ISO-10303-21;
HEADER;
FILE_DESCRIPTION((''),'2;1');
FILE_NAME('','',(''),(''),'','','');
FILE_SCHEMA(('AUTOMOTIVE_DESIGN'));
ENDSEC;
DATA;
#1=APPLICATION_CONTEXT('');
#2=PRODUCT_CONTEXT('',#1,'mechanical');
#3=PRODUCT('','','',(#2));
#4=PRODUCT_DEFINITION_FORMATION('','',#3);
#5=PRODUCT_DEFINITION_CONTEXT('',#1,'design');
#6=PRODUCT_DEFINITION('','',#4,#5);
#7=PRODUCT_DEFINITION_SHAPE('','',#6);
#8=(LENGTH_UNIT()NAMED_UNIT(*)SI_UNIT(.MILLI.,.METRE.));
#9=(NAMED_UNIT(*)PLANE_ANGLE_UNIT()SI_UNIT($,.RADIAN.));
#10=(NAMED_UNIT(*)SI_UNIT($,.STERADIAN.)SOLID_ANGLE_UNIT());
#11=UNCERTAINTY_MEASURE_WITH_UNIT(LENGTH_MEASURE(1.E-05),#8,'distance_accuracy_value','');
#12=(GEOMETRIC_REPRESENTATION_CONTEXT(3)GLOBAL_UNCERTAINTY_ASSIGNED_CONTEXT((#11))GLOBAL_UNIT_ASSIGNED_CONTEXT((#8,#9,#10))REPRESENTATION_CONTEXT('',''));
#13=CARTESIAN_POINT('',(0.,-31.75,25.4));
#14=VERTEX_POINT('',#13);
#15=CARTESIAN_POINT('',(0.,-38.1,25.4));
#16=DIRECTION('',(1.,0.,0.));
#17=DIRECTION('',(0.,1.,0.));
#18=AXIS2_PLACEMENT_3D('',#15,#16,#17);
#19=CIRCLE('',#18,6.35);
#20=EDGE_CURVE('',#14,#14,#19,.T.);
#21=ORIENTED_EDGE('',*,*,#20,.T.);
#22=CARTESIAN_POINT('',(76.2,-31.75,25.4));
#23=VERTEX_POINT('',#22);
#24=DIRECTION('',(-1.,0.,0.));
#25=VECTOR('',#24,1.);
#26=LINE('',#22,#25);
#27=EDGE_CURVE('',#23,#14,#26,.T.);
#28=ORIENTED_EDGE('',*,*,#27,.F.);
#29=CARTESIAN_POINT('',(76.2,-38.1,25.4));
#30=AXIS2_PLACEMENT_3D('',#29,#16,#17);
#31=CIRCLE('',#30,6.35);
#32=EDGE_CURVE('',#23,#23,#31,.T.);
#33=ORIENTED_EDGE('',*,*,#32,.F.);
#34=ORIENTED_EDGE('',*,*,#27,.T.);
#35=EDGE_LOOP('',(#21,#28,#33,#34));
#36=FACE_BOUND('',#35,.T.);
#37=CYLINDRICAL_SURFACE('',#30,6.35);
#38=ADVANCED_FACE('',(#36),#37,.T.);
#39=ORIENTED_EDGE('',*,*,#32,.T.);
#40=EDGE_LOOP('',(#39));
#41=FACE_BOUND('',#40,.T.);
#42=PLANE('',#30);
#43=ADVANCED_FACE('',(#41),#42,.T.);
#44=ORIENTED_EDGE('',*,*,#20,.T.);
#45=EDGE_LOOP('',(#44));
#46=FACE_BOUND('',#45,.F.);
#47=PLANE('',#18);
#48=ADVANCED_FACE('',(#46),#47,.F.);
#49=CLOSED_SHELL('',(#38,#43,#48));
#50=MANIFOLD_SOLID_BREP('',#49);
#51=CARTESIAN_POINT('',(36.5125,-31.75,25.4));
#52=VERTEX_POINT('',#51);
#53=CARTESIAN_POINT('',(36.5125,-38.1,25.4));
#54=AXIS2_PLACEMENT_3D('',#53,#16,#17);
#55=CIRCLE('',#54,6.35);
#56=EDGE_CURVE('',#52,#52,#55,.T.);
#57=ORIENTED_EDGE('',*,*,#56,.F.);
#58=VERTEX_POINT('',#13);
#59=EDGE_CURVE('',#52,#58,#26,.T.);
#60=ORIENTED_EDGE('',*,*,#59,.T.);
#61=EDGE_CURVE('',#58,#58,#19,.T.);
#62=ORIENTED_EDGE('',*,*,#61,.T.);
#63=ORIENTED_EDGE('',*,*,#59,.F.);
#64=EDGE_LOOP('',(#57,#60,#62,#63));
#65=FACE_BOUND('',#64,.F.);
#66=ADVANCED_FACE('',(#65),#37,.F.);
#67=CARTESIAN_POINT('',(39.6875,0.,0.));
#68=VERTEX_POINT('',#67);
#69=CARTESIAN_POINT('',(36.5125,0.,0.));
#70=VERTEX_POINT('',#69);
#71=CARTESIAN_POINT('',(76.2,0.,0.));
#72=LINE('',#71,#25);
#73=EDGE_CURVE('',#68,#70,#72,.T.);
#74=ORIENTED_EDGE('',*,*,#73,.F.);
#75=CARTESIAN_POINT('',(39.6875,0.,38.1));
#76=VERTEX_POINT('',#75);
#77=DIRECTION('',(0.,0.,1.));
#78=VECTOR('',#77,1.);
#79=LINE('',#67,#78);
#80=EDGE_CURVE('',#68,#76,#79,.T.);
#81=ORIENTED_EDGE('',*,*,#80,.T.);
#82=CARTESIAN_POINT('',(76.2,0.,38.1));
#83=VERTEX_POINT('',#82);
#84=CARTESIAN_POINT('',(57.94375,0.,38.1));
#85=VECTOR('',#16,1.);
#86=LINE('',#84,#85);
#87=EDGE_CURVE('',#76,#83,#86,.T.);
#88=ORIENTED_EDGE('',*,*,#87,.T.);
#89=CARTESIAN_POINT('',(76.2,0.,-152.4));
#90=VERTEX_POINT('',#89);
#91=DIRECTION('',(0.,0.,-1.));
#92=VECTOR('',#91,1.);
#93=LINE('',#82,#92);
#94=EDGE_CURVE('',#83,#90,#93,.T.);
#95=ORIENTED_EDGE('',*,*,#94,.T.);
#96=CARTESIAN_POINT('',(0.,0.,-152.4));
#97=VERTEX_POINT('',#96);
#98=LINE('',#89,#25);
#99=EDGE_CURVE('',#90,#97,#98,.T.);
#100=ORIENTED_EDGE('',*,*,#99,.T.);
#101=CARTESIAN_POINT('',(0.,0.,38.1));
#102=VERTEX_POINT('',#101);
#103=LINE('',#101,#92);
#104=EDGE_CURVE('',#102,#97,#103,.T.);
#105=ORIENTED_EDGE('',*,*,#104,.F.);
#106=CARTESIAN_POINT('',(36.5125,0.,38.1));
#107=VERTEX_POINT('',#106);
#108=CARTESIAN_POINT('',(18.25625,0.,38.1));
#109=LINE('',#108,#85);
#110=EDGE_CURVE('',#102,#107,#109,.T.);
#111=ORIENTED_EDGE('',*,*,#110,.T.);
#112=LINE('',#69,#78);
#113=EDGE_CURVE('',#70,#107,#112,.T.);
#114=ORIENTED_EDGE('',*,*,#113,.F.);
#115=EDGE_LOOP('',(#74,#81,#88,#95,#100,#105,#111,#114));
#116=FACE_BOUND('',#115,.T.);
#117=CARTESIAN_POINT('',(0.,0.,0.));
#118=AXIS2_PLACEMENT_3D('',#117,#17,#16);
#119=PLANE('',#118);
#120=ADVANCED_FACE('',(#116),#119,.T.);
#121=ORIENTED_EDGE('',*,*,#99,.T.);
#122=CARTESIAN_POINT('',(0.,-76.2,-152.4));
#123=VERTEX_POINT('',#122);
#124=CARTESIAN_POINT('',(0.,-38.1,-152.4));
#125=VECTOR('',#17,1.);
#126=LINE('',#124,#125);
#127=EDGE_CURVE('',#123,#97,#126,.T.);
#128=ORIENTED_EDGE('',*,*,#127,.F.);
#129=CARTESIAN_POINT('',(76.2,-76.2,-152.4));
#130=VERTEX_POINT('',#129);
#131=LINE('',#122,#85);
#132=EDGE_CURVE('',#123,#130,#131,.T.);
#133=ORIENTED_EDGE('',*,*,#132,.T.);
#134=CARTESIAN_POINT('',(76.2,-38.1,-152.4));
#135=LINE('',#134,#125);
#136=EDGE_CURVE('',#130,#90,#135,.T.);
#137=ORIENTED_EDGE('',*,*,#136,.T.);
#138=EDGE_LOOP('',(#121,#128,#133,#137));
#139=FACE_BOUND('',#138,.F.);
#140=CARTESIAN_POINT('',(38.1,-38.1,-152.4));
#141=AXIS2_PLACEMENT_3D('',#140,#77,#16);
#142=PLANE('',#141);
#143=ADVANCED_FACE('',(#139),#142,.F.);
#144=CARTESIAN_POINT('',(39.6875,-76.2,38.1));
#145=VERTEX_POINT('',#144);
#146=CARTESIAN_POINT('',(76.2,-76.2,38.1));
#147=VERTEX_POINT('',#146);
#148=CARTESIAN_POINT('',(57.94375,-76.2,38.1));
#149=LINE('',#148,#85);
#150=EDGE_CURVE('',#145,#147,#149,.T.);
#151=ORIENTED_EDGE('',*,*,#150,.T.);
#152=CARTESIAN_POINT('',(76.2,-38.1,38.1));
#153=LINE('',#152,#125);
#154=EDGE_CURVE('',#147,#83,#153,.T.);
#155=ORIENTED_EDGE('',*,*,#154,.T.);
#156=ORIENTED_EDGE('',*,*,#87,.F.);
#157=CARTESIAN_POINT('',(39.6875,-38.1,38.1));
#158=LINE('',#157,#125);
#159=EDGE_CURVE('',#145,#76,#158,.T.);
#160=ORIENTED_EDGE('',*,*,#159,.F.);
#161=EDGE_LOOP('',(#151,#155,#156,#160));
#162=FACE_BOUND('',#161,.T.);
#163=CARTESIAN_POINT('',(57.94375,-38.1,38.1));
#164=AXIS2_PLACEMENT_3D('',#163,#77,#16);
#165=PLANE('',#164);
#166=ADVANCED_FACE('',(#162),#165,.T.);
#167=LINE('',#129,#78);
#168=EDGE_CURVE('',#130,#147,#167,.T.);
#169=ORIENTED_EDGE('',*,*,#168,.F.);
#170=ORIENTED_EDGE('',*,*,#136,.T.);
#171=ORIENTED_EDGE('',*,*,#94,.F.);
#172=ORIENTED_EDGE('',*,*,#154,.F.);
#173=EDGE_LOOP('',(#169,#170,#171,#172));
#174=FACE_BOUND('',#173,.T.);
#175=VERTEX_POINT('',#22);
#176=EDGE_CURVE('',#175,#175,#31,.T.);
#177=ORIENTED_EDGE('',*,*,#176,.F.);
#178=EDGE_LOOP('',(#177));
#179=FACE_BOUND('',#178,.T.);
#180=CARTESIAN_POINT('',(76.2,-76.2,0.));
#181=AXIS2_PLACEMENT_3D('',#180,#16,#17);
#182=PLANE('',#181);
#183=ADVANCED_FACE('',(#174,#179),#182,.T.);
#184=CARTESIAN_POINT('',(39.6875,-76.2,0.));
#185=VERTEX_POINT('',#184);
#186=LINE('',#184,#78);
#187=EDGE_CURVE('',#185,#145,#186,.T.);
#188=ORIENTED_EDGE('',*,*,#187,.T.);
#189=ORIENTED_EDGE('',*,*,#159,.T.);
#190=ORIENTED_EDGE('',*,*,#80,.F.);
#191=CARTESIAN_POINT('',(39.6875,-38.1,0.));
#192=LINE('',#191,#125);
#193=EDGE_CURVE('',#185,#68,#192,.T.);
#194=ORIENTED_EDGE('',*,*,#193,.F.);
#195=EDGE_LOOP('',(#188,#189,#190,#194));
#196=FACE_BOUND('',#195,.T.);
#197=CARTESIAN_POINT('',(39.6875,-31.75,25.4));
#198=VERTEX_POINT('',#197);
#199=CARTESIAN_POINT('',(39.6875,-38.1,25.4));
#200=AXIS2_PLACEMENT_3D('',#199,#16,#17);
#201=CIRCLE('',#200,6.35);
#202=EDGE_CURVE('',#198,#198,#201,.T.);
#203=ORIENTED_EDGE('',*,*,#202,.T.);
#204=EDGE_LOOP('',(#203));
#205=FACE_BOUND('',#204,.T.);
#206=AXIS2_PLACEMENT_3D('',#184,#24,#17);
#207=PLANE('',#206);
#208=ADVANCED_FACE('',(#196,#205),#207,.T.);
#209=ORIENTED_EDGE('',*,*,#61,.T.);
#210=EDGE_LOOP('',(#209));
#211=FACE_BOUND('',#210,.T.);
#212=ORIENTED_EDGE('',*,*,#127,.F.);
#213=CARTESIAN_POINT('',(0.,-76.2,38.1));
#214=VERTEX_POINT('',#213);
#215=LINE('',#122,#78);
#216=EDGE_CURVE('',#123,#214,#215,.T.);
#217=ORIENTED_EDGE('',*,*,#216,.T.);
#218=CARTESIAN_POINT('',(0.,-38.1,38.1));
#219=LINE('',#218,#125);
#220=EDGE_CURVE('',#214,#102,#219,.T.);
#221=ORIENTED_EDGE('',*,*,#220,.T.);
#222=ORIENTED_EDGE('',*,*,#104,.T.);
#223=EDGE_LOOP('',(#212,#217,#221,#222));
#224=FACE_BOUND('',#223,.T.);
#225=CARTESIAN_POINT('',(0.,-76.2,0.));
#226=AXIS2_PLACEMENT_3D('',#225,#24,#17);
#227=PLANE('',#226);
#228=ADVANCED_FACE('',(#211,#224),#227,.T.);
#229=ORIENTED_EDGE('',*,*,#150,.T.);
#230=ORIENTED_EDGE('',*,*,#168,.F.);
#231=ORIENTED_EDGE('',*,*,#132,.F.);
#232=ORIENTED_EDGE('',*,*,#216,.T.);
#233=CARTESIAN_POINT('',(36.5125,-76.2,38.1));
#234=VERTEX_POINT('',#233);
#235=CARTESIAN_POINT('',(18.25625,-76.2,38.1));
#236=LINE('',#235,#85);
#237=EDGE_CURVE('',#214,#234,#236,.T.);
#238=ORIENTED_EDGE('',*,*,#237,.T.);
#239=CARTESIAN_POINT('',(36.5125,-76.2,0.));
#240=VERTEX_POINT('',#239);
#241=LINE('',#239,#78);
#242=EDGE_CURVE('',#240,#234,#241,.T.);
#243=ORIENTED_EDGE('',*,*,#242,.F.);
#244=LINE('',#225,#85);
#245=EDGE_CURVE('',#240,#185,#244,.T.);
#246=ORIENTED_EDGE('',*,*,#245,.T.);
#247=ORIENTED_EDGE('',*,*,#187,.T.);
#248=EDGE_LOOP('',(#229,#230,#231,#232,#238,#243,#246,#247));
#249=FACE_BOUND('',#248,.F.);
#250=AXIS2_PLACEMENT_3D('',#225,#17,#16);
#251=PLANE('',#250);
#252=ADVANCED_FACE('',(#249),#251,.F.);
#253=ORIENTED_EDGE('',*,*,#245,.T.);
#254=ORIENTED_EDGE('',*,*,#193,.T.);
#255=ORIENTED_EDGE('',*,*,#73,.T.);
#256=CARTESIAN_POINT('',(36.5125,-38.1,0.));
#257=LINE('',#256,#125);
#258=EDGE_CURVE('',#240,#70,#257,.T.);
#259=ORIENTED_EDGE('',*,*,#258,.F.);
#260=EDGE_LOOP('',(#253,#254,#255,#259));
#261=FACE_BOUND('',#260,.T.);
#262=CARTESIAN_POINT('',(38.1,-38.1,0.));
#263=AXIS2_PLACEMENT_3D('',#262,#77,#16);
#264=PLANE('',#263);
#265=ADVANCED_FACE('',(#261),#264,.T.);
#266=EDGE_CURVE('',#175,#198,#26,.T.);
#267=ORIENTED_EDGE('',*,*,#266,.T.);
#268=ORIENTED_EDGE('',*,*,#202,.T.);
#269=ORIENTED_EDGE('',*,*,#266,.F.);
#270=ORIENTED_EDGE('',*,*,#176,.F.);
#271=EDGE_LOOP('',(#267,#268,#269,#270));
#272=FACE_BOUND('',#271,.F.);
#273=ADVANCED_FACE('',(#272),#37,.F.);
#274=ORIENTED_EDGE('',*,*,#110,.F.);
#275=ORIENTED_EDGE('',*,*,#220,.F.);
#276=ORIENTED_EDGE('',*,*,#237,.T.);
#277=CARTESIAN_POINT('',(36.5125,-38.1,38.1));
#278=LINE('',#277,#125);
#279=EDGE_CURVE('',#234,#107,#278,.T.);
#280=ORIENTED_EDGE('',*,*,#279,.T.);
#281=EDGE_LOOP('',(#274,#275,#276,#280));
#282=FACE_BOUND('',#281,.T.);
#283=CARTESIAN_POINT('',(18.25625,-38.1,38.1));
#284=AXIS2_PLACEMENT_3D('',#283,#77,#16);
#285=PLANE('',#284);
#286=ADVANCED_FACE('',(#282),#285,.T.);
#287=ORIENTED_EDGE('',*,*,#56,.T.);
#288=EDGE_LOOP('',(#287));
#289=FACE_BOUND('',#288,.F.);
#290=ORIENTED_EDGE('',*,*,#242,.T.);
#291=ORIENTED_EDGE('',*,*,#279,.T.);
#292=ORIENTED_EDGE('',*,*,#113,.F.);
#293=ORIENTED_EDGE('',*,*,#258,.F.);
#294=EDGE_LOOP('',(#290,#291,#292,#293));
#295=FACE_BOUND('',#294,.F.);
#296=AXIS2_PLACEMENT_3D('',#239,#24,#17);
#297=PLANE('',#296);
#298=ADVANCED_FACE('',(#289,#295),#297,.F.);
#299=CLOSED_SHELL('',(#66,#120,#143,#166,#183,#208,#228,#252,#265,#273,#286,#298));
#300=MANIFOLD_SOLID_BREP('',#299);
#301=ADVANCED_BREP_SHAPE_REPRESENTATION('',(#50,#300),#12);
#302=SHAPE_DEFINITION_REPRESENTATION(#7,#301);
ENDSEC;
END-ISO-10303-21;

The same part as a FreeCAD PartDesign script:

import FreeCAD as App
import Part
import Sketcher

V = App.Vector
Q = App.Units.Quantity


def add_polygon(sketch, points):
    """Adds a closed chain of lines whose ends are joined by coincident constraints."""
    first, n = sketch.GeometryCount, len(points)
    for a, b in zip(points, points[1:] + points[:1]):
        sketch.addGeometry(Part.LineSegment(App.Vector(*a, 0), App.Vector(*b, 0)), False)
    for i in range(n):
        sketch.addConstraint(Sketcher.Constraint("Coincident", first + i, 2, first + (i + 1) % n, 1))

doc = App.newDocument("Part")
body = doc.addObject("PartDesign::Body", "Body")

sketch1 = body.newObject("Sketcher::SketchObject", "Sketch")
sketch1.AttachmentSupport = (doc.getObject("XY_Plane"), [""])
sketch1.MapMode = "FlatFace"
add_polygon(sketch1, [(76, -76), (76, 0), (0, 0), (0, -76)])
sketch1.addConstraint([
    Sketcher.Constraint("Vertical", 0),
    Sketcher.Constraint("Horizontal", 1),
    Sketcher.Constraint("Vertical", 2),
    Sketcher.Constraint("Horizontal", 3),
    Sketcher.Constraint("Coincident", 1, 2, -1, 1),
    Sketcher.Constraint("Equal", 3, 0),
    Sketcher.Constraint("DistanceX", 1, 2, 1, 1, Q("3 in")),
])
pad1 = body.newObject("PartDesign::Pad", "Pad")
pad1.Profile = sketch1
pad1.Length = Q("6 in")
pad1.Reversed = True

sketch2 = body.newObject("Sketcher::SketchObject", "Sketch001")
sketch2.AttachmentSupport = (doc.getObject("XY_Plane"), [""])
sketch2.MapMode = "FlatFace"
add_polygon(sketch2, [(0, 0), (0, -76), (37, -76), (37, 0)])
add_polygon(sketch2, [(40, 0), (40, -76), (76, -76), (76, 0)])
sketch2.addConstraint([
    Sketcher.Constraint("Vertical", 0),
    Sketcher.Constraint("Horizontal", 1),
    Sketcher.Constraint("Vertical", 2),
    Sketcher.Constraint("Horizontal", 3),
    Sketcher.Constraint("Vertical", 4),
    Sketcher.Constraint("Horizontal", 5),
    Sketcher.Constraint("Vertical", 6),
    Sketcher.Constraint("Horizontal", 7),
    Sketcher.Constraint("Coincident", 3, 2, -1, 1),
    Sketcher.Constraint("PointOnObject", 6, 2, -1),
    Sketcher.Constraint("Horizontal", 1, 2, 4, 2),
    Sketcher.Constraint("Equal", 3, 5),
    Sketcher.Constraint("DistanceY", 0, 2, 0, 1, Q("3 in")),
    Sketcher.Constraint("DistanceX", -1, 1, 5, 2, Q("3 in")),
    Sketcher.Constraint("DistanceX", 1, 1, 1, 2, Q("1.4375 in")),
])
pad2 = body.newObject("PartDesign::Pad", "Pad001")
pad2.Profile = sketch2
pad2.Length = Q("1.5 in")

sketch3 = body.newObject("Sketcher::SketchObject", "Sketch002")
sketch3.AttachmentSupport = (doc.getObject("YZ_Plane"), [""])
sketch3.MapMode = "FlatFace"
sketch3.AttachmentOffset = App.Placement(V(0, 0, 3 * 25.4), App.Rotation())
sketch3.addGeometry(Part.Circle(V(-38, 25, 0), V(0, 0, 1), 6), False)
sketch3.addConstraint([
    Sketcher.Constraint("Diameter", 0, Q("0.5 in")),
    Sketcher.Constraint("DistanceY", -1, 1, 0, 3, Q("1 in")),
    Sketcher.Constraint("DistanceX", 0, 3, -1, 1, Q("1.5 in")),
])
pocket1 = body.newObject("PartDesign::Pocket", "Pocket")
pocket1.Profile = sketch3
pocket1.Type = "ThroughAll"
body2 = doc.addObject("PartDesign::Body", "Body001")

sketch4 = body2.newObject("Sketcher::SketchObject", "Sketch003")
sketch4.AttachmentSupport = (doc.getObject("YZ_Plane001"), [""])
sketch4.MapMode = "FlatFace"
sketch4.AttachmentOffset = App.Placement(V(0, 0, 3 * 25.4), App.Rotation())
sketch4.addGeometry(Part.Circle(V(-38, 25, 0), V(0, 0, 1), 6), False)
sketch4.addConstraint([
    Sketcher.Constraint("Diameter", 0, Q("0.5 in")),
    Sketcher.Constraint("DistanceY", -1, 1, 0, 3, Q("1 in")),
    Sketcher.Constraint("DistanceX", 0, 3, -1, 1, Q("1.5 in")),
])
pad3 = body2.newObject("PartDesign::Pad", "Pad002")
pad3.Profile = sketch4
pad3.Length = Q("3 in")
pad3.Reversed = True

doc.recompute()
